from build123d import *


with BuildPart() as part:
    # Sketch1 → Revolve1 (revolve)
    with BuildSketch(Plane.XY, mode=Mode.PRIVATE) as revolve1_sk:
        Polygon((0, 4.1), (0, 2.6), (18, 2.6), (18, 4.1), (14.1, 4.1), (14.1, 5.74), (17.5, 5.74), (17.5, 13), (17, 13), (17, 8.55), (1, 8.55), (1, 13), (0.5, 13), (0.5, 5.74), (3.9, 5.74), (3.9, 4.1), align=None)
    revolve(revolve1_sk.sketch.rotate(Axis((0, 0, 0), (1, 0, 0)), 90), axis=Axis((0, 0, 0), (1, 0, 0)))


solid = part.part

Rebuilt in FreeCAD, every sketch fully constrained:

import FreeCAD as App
import Part
import Sketcher

V = App.Vector


def add_polygon(sketch, points):
    """Adds a closed chain of lines whose ends are joined by coincident constraints."""
    first, n = sketch.GeometryCount, len(points)
    for a, b in zip(points, points[1:] + points[:1]):
        sketch.addGeometry(Part.LineSegment(App.Vector(*a, 0), App.Vector(*b, 0)), False)
    for i in range(n):
        sketch.addConstraint(Sketcher.Constraint("Coincident", first + i, 2, first + (i + 1) % n, 1))

doc = App.newDocument("Part")
body = doc.addObject("PartDesign::Body", "Body")

# Sketch on XY plane
sketch1 = body.newObject("Sketcher::SketchObject", "Sketch")
sketch1.AttachmentSupport = (doc.getObject("XY_Plane"), [""])
sketch1.MapMode = "FlatFace"
add_polygon(sketch1, [(0, 4.1), (0, 2.6), (18, 2.6), (18, 4.1), (14.1, 4.1), (14.1, 5.74), (17.5, 5.74), (17.5, 13), (17, 13), (17, 8.55), (1, 8.55), (1, 13), (0.5, 13), (0.5, 5.74), (3.9, 5.74), (3.9, 4.1)])  # lines 0-15
sketch1.addConstraint(Sketcher.Constraint("Vertical", 0))
sketch1.addConstraint(Sketcher.Constraint("Horizontal", 1))
sketch1.addConstraint(Sketcher.Constraint("Vertical", 2))
sketch1.addConstraint(Sketcher.Constraint("Horizontal", 3))
sketch1.addConstraint(Sketcher.Constraint("Vertical", 4))
sketch1.addConstraint(Sketcher.Constraint("Horizontal", 5))
sketch1.addConstraint(Sketcher.Constraint("Vertical", 6))
sketch1.addConstraint(Sketcher.Constraint("Horizontal", 7))
sketch1.addConstraint(Sketcher.Constraint("Vertical", 8))
sketch1.addConstraint(Sketcher.Constraint("Horizontal", 9))
sketch1.addConstraint(Sketcher.Constraint("Vertical", 10))
sketch1.addConstraint(Sketcher.Constraint("Horizontal", 11))
sketch1.addConstraint(Sketcher.Constraint("Vertical", 12))
sketch1.addConstraint(Sketcher.Constraint("Horizontal", 13))
sketch1.addConstraint(Sketcher.Constraint("Vertical", 14))
sketch1.addConstraint(Sketcher.Constraint("Horizontal", 15))
sketch1.addConstraint(Sketcher.Constraint("PointOnObject", 0, 2, -2))
sketch1.addConstraint(Sketcher.Constraint("Horizontal", 7, 2, 10, 2))
sketch1.addConstraint(Sketcher.Constraint("Horizontal", 5, 2, 12, 2))
sketch1.addConstraint(Sketcher.Constraint("Horizontal", 3, 2, 14, 2))
sketch1.addConstraint(Sketcher.Constraint("Equal", 7, 11))
sketch1.addConstraint(Sketcher.Constraint("Equal", 5, 13))
sketch1.addConstraint(Sketcher.Constraint("Equal", 3, 15))
sketch1.addConstraint(Sketcher.Constraint("DistanceX", 1, 1, 1, 2, 18.0))
sketch1.addConstraint(Sketcher.Constraint("DistanceX", 9, 2, 9, 1, 16.0))
sketch1.addConstraint(Sketcher.Constraint("DistanceX", 3, 2, 3, 1, 3.9))
sketch1.addConstraint(Sketcher.Constraint("DistanceX", 5, 1, 5, 2, 3.4))
sketch1.addConstraint(Sketcher.Constraint("DistanceY", 0, 2, 0, 1, 1.5))
sketch1.addConstraint(Sketcher.Constraint("DistanceY", -1, 1, 6, 2, 13.0))
sketch1.addConstraint(Sketcher.Constraint("DistanceY", 4, 1, 4, 2, 1.64))
sketch1.addConstraint(Sketcher.Constraint("DistanceY", 6, 1, 6, 2, 7.26))
sketch1.addConstraint(Sketcher.Constraint("DistanceY", 8, 2, 8, 1, 4.45))
revolution = body.newObject("PartDesign::Revolution", "Revolution")
revolution.Profile = sketch1
revolution.ReferenceAxis = (sketch1, ["H_Axis"])
revolution.Angle = 360

doc.recompute()
